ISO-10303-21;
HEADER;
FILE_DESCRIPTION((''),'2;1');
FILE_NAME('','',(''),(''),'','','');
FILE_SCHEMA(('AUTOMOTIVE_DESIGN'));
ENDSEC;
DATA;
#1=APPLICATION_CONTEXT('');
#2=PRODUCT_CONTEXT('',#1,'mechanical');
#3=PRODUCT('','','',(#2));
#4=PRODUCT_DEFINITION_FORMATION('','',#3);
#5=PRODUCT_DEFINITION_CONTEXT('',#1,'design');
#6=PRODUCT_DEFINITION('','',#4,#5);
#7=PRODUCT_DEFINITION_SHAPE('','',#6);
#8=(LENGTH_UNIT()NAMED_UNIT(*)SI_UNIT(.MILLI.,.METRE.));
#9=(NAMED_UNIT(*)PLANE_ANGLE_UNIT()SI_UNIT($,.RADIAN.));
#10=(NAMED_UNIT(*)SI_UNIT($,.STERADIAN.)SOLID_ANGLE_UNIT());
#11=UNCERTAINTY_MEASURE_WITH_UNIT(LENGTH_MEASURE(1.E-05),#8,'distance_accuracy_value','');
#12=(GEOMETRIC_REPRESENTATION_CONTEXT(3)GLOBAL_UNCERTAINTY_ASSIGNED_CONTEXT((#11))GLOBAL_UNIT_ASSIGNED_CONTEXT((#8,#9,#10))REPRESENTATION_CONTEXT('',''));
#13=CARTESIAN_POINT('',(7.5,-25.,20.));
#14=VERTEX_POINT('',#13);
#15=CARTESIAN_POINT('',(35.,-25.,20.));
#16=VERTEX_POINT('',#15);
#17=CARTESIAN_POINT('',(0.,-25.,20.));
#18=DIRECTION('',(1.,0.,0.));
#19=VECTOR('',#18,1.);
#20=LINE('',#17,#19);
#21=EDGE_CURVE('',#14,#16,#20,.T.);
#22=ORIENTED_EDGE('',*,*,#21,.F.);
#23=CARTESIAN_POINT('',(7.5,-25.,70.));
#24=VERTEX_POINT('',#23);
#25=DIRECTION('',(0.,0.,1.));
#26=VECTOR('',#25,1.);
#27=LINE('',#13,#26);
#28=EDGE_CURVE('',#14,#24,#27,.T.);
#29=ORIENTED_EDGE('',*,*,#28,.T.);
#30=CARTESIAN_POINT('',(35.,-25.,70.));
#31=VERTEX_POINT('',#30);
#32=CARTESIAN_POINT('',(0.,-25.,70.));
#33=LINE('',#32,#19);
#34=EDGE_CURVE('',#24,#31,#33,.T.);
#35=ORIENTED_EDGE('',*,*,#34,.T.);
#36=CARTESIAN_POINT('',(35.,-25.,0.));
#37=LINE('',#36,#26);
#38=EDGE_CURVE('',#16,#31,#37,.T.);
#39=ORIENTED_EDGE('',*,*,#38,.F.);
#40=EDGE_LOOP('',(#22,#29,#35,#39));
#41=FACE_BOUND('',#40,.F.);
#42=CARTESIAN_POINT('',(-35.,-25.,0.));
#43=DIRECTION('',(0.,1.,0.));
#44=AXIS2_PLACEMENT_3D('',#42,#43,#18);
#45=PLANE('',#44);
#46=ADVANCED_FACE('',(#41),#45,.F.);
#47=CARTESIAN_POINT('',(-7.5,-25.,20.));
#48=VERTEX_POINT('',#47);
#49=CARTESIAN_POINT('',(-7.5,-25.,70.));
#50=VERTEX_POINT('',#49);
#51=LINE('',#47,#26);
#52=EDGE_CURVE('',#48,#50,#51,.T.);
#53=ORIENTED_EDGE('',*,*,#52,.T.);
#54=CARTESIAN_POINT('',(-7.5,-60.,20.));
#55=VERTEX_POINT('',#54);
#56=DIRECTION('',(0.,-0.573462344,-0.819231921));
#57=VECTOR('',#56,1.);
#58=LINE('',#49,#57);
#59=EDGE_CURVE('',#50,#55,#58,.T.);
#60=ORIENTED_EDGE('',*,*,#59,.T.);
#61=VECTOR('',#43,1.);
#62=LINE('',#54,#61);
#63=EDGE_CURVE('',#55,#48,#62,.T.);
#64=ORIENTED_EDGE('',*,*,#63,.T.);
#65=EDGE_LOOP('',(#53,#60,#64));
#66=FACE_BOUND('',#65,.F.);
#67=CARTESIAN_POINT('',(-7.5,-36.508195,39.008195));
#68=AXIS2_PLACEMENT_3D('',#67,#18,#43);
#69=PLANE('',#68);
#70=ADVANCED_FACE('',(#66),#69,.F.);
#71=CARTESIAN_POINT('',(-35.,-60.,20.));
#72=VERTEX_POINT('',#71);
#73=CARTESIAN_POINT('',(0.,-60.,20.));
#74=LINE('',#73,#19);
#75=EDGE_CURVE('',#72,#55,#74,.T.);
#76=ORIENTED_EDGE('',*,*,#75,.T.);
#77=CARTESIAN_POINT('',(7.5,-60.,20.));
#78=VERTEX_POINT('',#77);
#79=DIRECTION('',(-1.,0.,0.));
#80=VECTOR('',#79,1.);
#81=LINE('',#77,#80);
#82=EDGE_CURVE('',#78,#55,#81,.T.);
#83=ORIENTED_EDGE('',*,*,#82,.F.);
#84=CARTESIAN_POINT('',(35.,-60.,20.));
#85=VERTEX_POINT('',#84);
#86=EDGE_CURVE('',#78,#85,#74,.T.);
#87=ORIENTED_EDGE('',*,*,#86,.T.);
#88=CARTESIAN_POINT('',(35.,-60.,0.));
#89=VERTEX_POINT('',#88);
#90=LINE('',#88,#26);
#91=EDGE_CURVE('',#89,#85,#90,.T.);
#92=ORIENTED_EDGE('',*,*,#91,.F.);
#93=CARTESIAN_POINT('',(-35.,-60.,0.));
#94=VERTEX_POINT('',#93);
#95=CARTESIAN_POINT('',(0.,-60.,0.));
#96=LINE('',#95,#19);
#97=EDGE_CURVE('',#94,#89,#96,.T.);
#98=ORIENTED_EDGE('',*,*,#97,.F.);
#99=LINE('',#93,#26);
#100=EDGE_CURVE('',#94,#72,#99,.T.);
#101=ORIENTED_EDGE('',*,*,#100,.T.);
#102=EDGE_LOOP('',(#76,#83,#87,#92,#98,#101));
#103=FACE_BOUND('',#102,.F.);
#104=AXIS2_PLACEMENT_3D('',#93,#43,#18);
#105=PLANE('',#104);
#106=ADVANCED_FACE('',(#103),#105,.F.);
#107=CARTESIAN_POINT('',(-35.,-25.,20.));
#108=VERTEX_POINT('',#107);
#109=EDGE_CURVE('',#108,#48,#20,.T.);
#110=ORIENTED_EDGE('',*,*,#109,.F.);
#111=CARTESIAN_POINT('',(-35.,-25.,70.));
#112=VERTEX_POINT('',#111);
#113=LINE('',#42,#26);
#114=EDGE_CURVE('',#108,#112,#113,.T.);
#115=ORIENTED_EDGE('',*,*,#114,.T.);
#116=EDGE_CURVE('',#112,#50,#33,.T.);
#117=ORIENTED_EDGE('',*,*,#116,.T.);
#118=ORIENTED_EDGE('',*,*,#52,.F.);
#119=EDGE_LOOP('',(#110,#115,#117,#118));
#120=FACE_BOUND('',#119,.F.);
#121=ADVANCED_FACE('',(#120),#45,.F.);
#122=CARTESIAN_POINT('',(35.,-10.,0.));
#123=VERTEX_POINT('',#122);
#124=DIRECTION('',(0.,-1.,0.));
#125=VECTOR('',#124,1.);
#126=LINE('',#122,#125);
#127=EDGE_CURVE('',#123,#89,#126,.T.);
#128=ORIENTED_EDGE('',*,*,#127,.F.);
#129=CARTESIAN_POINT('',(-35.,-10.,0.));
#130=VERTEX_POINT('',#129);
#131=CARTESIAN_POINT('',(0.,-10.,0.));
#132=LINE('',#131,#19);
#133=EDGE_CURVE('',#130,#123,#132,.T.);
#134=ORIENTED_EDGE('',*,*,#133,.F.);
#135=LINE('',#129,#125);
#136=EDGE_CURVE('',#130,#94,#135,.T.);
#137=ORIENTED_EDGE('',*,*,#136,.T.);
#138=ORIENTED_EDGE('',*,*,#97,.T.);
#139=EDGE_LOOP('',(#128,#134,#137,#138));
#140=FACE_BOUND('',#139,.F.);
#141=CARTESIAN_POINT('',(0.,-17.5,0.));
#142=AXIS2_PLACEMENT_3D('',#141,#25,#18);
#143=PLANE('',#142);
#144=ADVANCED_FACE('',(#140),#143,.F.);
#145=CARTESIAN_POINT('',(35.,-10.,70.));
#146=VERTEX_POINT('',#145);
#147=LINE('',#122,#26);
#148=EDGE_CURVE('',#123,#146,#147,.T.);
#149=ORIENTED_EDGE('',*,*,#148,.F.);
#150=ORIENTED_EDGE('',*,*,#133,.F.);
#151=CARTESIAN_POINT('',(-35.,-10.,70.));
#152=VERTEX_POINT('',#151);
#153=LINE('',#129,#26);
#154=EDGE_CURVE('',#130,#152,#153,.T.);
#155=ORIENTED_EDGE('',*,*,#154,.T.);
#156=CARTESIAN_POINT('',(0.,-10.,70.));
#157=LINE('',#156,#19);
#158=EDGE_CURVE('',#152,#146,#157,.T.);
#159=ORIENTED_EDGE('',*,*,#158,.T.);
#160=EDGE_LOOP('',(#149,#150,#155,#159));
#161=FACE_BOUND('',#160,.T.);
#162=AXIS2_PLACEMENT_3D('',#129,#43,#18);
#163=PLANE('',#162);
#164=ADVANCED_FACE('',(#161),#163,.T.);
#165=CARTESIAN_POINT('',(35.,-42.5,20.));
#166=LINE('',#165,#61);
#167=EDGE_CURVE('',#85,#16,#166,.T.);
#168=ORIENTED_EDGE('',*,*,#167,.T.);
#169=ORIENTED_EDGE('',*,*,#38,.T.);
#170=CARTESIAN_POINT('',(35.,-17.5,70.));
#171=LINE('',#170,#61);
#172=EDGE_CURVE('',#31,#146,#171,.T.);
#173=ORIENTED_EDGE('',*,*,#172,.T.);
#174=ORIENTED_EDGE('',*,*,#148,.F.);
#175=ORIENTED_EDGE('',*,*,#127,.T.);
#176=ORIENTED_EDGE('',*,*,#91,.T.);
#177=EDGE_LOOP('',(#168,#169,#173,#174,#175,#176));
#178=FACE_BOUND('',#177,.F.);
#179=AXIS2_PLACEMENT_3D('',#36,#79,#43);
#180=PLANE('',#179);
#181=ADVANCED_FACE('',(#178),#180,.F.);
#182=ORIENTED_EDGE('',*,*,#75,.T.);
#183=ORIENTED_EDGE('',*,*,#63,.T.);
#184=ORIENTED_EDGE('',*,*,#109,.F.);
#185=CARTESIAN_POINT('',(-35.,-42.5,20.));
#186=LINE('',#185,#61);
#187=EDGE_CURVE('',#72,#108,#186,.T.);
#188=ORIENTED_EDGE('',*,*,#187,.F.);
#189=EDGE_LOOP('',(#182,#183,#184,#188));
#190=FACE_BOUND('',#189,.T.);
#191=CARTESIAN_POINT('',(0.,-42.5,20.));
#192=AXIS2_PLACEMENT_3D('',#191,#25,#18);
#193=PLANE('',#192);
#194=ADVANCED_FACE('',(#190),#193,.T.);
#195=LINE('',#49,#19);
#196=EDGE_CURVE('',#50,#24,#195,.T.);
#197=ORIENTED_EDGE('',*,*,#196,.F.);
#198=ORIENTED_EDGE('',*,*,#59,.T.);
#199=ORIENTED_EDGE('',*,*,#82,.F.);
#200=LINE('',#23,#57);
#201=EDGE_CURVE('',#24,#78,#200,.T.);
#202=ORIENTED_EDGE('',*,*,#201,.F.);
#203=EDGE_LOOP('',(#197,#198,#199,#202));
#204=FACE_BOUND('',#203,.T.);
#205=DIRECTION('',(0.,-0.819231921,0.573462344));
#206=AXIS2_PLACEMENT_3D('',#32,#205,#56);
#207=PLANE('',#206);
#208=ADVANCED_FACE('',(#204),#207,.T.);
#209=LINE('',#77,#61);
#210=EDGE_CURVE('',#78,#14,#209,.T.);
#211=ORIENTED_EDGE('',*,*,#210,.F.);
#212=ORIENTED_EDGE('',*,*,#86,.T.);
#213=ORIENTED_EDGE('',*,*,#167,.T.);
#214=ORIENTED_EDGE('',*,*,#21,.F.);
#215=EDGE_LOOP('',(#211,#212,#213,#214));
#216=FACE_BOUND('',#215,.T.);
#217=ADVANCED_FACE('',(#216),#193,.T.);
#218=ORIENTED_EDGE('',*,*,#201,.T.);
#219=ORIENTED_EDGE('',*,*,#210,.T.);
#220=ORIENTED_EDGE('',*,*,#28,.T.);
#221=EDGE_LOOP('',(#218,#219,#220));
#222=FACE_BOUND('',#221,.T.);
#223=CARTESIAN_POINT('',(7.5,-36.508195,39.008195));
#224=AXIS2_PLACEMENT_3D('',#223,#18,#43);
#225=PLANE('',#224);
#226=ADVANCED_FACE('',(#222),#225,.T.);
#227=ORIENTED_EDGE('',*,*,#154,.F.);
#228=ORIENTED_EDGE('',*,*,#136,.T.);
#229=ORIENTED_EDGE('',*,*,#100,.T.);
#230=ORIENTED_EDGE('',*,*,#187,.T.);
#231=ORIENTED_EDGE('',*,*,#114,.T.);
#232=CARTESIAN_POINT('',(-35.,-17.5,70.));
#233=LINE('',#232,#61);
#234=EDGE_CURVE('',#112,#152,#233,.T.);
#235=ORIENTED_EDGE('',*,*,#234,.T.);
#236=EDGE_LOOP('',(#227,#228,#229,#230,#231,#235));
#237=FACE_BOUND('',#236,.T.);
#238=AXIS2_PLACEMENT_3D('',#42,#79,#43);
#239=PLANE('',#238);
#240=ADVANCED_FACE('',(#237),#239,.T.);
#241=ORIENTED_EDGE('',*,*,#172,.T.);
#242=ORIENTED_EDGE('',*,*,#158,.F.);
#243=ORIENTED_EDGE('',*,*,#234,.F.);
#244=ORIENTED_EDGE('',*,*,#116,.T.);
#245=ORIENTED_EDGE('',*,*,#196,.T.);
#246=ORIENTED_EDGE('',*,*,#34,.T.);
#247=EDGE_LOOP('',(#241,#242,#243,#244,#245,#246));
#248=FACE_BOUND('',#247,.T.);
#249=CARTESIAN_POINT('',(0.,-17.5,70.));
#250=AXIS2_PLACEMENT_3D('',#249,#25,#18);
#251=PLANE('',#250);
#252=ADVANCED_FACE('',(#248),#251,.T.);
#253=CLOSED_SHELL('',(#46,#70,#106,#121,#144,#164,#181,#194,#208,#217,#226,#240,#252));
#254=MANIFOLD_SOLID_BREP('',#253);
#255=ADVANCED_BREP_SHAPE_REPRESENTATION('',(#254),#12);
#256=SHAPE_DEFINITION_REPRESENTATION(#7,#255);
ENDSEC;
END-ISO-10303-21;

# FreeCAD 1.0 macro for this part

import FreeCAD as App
import Part
import Sketcher


def add_polygon(sketch, points):
    """Adds a closed chain of lines whose ends are joined by coincident constraints."""
    first, n = sketch.GeometryCount, len(points)
    for a, b in zip(points, points[1:] + points[:1]):
        sketch.addGeometry(Part.LineSegment(App.Vector(*a, 0), App.Vector(*b, 0)), False)
    for i in range(n):
        sketch.addConstraint(Sketcher.Constraint("Coincident", first + i, 2, first + (i + 1) % n, 1))

doc = App.newDocument("Part")
params = doc.addObject("Spreadsheet::Sheet", "Params")
for row, (alias, value) in enumerate([
    ("sketch1_width", "70 mm"),
    ("sketch1_height", "35 mm"),
    ("pad1_length", "20 mm"),
    ("sketch2_width", "70 mm"),
    ("sketch2_height", "15 mm"),
    ("pad2_length", "70 mm"),
    ("sketch3_width", "35 mm"),
    ("sketch3_height", "50 mm"),
    ("pad3_length", "15 mm"),
], start=1):
    params.set(f"A{row}", alias)
    params.set(f"B{row}", "=" + value)
    params.setAlias(f"B{row}", alias)

body = doc.addObject("PartDesign::Body", "Body")

# Sketch on XY plane
sketch1 = body.newObject("Sketcher::SketchObject", "Sketch")
sketch1.AttachmentSupport = (doc.getObject("XY_Plane"), [""])
sketch1.MapMode = "FlatFace"
add_polygon(sketch1, [(-35, -25), (-35, -60), (35, -60), (35, -25)])  # lines 0-3
sketch1.addConstraint([
    Sketcher.Constraint("Vertical", 0),
    Sketcher.Constraint("Horizontal", 1),
    Sketcher.Constraint("Vertical", 2),
    Sketcher.Constraint("Horizontal", 3),
    Sketcher.Constraint("DistanceX", 1, 1, 1, 2, 70.0),
    Sketcher.Constraint("DistanceY", 0, 2, 0, 1, 35.0),
    Sketcher.Constraint("DistanceX", 0, 2, -1, 1, 35.0),
    Sketcher.Constraint("DistanceY", 0, 2, -1, 1, 60.0),
])
sketch1.setExpression("Constraints[8]", "Params.sketch1_width")
sketch1.setExpression("Constraints[9]", "Params.sketch1_height")
pad1 = body.newObject("PartDesign::Pad", "Pad")
pad1.Profile = sketch1
pad1.setExpression("Length", "Params.pad1_length")

# Sketch on XY plane
sketch2 = body.newObject("Sketcher::SketchObject", "Sketch001")
sketch2.AttachmentSupport = (doc.getObject("XY_Plane"), [""])
sketch2.MapMode = "FlatFace"
add_polygon(sketch2, [(-35, -10), (-35, -25), (35, -25), (35, -10)])  # lines 0-3
sketch2.addConstraint([
    Sketcher.Constraint("Vertical", 0),
    Sketcher.Constraint("Horizontal", 1),
    Sketcher.Constraint("Vertical", 2),
    Sketcher.Constraint("Horizontal", 3),
    Sketcher.Constraint("DistanceX", 1, 1, 1, 2, 70.0),
    Sketcher.Constraint("DistanceY", 0, 2, 0, 1, 15.0),
    Sketcher.Constraint("DistanceX", 0, 2, -1, 1, 35.0),
    Sketcher.Constraint("DistanceY", 0, 2, -1, 1, 25.0),
])
sketch2.setExpression("Constraints[8]", "Params.sketch2_width")
sketch2.setExpression("Constraints[9]", "Params.sketch2_height")
pad2 = body.newObject("PartDesign::Pad", "Pad001")
pad2.Profile = sketch2
pad2.setExpression("Length", "Params.pad2_length")

# Sketch on YZ plane
sketch3 = body.newObject("Sketcher::SketchObject", "Sketch002")
sketch3.AttachmentSupport = (doc.getObject("YZ_Plane"), [""])
sketch3.MapMode = "FlatFace"
add_polygon(sketch3, [(-25, 20), (-25, 70), (-60, 20)])  # lines 0-2
sketch3.addConstraint([
    Sketcher.Constraint("Vertical", 0),
    Sketcher.Constraint("Horizontal", 2),
    Sketcher.Constraint("DistanceX", 2, 1, 2, 2, 35.0),
    Sketcher.Constraint("DistanceY", 0, 1, 0, 2, 50.0),
    Sketcher.Constraint("DistanceX", 0, 2, -1, 1, 25.0),
    Sketcher.Constraint("DistanceY", -1, 1, 0, 2, 70.0),
])
sketch3.setExpression("Constraints[5]", "Params.sketch3_width")
sketch3.setExpression("Constraints[6]", "Params.sketch3_height")
pad3 = body.newObject("PartDesign::Pad", "Pad002")
pad3.Profile = sketch3
pad3.setExpression("Length", "Params.pad3_length")
pad3.Midplane = True

doc.recompute()
